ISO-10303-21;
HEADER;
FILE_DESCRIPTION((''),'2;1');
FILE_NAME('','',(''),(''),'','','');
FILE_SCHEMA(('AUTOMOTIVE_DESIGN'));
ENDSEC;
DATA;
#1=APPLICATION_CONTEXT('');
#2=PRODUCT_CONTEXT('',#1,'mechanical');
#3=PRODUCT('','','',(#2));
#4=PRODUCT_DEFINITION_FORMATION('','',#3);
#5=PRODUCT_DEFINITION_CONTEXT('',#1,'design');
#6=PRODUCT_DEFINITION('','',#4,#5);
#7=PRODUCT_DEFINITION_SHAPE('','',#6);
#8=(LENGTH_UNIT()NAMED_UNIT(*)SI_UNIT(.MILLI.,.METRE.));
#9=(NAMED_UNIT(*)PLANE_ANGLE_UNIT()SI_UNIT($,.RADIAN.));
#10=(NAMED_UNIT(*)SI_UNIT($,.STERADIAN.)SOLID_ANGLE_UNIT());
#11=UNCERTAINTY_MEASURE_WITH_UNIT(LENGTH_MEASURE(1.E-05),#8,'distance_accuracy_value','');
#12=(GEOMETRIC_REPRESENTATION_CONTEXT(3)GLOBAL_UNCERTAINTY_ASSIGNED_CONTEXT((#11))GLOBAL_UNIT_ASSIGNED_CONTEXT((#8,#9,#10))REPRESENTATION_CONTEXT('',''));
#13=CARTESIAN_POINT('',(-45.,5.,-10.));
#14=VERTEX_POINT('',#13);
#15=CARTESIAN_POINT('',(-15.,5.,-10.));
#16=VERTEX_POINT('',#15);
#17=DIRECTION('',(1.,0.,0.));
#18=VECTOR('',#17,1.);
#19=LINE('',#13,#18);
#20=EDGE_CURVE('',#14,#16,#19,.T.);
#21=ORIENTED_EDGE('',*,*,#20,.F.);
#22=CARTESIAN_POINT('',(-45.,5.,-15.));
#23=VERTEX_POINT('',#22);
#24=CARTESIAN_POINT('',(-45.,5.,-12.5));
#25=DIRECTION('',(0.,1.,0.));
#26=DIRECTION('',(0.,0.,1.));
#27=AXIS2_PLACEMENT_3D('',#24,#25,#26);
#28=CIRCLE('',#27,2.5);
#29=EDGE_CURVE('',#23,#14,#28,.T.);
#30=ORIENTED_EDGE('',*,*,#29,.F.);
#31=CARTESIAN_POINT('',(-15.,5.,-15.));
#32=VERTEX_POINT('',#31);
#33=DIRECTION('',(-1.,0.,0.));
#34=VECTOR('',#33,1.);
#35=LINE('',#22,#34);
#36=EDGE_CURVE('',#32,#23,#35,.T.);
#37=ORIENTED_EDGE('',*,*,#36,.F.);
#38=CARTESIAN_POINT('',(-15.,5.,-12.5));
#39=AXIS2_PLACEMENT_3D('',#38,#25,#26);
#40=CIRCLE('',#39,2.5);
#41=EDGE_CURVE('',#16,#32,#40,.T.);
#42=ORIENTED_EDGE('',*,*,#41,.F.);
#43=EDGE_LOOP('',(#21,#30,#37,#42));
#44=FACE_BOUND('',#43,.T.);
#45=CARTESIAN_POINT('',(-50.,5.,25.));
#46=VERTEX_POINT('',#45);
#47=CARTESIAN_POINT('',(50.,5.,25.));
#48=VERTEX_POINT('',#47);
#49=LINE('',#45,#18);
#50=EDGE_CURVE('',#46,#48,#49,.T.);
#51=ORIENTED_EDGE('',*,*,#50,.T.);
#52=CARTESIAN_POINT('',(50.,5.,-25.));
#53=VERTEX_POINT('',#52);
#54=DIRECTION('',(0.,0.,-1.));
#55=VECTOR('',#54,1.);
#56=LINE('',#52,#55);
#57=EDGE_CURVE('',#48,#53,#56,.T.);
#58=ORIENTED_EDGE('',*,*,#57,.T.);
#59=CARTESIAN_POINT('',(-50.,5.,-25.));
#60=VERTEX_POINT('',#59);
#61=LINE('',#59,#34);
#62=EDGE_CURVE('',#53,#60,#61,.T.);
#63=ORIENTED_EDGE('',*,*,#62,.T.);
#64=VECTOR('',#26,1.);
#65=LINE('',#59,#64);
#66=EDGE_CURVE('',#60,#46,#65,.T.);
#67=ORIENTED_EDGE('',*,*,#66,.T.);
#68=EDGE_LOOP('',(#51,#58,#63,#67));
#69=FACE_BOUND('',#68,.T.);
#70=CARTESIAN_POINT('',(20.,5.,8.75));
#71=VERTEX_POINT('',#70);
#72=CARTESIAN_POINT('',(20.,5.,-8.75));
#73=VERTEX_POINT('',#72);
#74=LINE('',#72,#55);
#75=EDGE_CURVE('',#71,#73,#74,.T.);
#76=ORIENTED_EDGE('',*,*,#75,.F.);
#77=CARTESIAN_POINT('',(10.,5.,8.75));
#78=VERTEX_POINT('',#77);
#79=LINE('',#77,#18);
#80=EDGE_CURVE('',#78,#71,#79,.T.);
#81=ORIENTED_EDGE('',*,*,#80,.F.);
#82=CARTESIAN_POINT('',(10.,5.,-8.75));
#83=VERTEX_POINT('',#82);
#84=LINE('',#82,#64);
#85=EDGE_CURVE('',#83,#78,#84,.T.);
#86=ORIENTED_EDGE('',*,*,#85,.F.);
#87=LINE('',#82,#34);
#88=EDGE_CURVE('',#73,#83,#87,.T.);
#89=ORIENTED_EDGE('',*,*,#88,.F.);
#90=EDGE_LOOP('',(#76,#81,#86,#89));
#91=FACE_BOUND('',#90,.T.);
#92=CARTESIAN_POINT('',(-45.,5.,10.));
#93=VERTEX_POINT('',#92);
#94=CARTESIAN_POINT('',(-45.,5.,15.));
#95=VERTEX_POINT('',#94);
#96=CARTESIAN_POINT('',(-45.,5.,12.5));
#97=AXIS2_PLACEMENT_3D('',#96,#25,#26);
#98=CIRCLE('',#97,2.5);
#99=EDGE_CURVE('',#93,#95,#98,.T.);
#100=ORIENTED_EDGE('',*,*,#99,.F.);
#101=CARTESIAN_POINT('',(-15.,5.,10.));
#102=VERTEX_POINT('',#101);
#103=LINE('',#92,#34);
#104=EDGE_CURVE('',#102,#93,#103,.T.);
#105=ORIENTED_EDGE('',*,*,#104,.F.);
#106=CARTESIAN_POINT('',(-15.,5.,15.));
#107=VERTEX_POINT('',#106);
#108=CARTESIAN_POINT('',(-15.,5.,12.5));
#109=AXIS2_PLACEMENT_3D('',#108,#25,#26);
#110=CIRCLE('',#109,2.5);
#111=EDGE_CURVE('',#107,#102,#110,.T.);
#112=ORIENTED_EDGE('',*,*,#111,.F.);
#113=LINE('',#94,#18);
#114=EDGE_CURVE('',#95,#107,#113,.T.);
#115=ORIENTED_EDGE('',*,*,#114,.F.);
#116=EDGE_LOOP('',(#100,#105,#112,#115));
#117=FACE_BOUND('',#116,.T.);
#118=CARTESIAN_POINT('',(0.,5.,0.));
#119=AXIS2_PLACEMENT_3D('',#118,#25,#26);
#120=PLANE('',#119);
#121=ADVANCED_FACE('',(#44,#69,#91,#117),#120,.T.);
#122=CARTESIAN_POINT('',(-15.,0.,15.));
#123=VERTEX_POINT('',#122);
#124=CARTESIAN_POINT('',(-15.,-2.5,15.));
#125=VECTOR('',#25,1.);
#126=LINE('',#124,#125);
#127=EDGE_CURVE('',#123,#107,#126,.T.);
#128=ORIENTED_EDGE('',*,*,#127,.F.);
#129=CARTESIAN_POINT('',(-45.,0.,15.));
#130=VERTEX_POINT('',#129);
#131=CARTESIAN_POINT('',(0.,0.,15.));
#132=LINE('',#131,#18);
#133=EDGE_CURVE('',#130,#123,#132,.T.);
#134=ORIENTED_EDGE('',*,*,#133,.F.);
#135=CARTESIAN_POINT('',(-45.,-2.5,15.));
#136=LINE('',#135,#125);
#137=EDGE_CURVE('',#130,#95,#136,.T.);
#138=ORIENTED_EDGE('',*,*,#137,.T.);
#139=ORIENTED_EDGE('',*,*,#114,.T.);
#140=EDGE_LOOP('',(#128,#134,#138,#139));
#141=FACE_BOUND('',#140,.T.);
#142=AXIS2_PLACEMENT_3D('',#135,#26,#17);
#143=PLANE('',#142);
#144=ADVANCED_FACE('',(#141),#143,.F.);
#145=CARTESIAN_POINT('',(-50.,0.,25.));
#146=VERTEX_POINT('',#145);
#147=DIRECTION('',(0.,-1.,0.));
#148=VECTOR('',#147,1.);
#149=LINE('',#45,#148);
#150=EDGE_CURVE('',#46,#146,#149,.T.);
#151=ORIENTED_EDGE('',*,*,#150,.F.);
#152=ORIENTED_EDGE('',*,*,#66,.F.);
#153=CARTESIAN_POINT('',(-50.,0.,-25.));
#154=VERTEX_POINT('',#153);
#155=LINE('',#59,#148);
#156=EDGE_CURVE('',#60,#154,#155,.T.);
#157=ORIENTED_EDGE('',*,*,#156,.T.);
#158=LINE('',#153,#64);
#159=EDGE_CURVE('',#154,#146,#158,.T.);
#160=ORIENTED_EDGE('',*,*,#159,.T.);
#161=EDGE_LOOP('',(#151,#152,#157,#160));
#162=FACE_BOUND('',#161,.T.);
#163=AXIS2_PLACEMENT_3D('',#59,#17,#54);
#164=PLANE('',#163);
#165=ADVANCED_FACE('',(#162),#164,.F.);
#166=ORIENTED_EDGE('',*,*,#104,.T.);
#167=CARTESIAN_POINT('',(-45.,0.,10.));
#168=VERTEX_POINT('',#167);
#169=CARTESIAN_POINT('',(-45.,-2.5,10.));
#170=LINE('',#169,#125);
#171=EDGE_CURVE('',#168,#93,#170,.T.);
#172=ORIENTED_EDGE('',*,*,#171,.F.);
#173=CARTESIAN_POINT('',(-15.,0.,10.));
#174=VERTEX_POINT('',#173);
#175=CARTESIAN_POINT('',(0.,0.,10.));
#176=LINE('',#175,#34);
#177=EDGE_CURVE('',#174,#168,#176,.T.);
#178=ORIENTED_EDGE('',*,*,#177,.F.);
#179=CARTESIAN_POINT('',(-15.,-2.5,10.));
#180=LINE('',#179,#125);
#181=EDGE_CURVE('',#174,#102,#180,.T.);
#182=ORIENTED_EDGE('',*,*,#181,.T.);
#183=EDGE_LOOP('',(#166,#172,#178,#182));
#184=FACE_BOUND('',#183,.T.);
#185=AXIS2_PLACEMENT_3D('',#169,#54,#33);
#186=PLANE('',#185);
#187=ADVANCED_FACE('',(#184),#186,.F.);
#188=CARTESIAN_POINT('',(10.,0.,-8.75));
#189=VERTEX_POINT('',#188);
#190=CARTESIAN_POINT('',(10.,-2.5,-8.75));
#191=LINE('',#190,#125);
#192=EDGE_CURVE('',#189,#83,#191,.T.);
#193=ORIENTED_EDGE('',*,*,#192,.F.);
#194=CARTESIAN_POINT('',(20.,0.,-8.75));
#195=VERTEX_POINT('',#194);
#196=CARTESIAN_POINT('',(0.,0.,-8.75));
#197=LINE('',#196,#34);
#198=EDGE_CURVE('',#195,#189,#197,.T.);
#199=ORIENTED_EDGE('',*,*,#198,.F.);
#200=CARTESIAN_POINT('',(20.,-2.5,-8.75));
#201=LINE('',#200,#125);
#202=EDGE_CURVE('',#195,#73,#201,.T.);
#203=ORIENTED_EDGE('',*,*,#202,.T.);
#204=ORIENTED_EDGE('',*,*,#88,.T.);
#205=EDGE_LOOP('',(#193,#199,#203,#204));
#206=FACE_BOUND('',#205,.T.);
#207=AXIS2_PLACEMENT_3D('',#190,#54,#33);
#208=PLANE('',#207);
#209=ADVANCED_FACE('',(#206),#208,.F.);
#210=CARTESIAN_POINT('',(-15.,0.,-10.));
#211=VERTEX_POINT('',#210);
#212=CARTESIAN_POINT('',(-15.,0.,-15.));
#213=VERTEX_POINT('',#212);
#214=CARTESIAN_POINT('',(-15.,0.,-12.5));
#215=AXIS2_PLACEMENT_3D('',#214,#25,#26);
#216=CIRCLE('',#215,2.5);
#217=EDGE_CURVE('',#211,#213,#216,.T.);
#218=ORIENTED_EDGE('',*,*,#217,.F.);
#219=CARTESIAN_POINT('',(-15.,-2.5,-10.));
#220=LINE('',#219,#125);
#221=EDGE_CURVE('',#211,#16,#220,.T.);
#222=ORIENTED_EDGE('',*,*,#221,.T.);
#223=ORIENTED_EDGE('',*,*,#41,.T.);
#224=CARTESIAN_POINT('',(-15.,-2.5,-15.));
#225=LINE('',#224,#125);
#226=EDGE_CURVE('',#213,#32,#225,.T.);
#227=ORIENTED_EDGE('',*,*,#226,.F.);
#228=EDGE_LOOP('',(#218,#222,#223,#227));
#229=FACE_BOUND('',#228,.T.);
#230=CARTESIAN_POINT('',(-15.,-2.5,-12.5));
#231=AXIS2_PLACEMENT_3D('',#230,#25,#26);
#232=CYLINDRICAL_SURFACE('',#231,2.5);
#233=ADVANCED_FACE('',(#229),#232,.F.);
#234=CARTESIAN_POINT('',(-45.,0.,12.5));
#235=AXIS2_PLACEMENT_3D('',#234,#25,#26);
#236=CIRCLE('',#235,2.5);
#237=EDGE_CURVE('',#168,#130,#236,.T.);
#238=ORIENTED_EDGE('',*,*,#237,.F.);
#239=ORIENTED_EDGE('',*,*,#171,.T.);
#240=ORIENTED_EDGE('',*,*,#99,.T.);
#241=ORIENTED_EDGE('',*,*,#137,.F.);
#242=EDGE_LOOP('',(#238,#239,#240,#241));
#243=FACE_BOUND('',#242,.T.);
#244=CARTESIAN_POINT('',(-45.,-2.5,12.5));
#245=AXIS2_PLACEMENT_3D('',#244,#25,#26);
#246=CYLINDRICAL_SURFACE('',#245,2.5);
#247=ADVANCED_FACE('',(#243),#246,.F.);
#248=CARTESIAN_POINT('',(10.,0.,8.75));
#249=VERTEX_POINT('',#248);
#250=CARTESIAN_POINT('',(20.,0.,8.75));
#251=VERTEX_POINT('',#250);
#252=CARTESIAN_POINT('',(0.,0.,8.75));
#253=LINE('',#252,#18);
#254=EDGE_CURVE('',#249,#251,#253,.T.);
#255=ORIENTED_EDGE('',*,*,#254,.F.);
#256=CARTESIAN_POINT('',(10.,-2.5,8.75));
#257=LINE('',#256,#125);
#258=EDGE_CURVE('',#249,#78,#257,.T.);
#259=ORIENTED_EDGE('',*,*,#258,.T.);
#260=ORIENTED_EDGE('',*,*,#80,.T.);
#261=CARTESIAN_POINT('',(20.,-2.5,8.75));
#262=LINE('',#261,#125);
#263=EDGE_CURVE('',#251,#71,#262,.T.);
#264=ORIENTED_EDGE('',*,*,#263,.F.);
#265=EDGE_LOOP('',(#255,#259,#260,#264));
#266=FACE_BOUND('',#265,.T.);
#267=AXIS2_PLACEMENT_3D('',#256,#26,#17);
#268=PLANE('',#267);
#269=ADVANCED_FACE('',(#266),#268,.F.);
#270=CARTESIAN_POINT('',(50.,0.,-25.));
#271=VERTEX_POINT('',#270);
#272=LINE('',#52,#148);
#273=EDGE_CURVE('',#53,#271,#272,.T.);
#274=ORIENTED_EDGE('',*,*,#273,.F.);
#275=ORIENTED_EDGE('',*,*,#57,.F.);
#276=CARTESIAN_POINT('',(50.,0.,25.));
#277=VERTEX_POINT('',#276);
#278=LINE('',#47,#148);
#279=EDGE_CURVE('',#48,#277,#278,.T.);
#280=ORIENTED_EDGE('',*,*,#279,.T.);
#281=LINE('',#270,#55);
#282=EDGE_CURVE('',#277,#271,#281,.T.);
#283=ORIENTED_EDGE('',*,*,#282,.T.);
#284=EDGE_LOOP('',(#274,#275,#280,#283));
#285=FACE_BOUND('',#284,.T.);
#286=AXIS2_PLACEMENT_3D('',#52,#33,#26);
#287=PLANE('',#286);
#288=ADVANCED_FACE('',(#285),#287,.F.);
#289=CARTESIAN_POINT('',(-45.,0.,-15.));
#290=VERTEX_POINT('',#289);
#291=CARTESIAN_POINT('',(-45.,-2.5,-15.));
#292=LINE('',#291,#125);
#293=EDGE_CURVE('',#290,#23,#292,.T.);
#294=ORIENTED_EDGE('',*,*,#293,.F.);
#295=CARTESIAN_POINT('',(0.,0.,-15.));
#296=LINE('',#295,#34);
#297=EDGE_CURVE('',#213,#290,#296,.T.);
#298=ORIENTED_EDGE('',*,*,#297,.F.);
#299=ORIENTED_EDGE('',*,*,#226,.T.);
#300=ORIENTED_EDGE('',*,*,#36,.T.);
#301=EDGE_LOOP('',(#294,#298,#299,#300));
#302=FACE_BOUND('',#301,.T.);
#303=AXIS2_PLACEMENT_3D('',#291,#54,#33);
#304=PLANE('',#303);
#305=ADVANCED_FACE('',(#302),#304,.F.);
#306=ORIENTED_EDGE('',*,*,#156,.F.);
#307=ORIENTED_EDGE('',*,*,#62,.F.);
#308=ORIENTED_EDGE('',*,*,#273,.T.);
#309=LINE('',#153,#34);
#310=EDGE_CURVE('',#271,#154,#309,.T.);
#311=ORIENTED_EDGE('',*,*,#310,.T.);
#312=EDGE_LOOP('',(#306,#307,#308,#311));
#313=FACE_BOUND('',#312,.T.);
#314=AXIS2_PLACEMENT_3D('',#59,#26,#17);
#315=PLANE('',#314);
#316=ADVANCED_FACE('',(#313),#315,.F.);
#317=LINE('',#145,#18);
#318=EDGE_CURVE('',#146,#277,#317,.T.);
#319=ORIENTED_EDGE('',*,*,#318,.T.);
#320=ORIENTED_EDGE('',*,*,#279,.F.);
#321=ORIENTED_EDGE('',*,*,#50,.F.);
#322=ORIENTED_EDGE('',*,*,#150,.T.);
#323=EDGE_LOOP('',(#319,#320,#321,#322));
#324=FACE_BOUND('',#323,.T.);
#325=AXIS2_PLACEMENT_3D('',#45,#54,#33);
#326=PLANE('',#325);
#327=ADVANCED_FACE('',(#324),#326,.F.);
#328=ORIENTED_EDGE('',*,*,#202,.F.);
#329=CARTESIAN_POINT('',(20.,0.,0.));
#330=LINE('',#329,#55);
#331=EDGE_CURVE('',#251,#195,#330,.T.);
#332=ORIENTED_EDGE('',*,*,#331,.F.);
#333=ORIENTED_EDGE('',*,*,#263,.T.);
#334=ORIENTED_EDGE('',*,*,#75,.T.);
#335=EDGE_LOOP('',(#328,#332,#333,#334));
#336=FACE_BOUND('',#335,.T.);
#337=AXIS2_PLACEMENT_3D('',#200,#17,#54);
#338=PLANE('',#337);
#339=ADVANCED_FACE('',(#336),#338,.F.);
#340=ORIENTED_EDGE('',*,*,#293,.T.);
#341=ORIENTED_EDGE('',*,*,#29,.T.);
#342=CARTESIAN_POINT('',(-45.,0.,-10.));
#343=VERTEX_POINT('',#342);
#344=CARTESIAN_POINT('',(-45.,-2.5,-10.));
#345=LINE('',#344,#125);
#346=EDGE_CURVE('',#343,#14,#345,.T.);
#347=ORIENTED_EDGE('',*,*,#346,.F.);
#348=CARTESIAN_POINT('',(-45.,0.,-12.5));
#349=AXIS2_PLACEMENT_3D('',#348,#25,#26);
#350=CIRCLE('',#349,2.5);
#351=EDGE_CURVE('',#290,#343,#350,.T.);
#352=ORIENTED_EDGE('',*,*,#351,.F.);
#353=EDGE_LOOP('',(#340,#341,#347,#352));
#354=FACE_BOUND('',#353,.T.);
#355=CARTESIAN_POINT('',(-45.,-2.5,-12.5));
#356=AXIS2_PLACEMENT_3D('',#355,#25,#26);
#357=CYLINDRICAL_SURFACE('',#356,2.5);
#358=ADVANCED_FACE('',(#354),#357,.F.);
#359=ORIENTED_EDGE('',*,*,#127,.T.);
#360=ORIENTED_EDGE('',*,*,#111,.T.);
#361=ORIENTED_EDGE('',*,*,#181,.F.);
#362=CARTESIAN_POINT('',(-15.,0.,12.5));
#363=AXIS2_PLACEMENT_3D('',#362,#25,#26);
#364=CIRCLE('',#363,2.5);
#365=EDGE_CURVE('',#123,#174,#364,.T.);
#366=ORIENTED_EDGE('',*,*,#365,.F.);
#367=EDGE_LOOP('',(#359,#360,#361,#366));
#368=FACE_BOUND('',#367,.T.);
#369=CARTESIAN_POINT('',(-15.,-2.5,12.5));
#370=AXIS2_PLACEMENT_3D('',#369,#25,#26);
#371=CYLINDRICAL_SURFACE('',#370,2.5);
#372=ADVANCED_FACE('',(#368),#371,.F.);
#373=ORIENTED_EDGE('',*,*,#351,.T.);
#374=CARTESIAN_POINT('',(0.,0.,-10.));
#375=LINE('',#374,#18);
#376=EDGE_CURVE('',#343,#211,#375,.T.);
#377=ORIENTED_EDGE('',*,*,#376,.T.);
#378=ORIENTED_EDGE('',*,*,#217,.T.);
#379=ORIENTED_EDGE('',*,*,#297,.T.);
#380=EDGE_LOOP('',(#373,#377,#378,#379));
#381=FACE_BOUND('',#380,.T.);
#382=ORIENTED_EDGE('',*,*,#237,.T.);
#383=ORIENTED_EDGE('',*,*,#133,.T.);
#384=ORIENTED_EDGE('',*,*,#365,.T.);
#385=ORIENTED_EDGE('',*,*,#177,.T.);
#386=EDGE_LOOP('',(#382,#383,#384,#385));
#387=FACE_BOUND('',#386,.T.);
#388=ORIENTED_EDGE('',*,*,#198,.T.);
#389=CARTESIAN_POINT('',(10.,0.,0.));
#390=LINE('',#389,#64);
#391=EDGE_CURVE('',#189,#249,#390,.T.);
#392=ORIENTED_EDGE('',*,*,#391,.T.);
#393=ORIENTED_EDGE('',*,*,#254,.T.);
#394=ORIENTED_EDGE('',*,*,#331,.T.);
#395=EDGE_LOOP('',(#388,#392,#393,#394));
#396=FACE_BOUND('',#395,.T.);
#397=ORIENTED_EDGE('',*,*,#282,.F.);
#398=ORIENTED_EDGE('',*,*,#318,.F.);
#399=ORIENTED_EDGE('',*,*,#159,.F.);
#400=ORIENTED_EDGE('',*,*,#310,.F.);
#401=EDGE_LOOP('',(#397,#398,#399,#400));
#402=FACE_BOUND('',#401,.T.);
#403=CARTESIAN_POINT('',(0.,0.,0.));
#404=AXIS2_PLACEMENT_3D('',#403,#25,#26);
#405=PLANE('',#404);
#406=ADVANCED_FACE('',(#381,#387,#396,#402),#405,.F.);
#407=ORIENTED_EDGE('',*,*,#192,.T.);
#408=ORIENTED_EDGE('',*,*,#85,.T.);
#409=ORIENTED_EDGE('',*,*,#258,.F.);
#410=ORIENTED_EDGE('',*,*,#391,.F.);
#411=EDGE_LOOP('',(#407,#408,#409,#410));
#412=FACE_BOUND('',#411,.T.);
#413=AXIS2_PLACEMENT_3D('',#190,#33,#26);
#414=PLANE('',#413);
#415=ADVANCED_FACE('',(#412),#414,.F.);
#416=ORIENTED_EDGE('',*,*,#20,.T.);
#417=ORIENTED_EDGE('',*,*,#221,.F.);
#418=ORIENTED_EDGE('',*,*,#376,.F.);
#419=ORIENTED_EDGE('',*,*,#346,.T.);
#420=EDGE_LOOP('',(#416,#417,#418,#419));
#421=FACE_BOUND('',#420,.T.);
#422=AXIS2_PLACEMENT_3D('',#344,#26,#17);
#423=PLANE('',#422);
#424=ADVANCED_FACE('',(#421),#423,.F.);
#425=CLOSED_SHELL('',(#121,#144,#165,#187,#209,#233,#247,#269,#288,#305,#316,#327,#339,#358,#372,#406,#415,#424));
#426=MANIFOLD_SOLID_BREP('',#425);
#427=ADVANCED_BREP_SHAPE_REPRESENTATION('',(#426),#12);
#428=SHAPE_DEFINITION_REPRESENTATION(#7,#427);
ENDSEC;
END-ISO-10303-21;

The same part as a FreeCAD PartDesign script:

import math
import FreeCAD as App
import Part
import Sketcher

V = App.Vector
Q = App.Units.Quantity

doc = App.newDocument("Part")
body = doc.addObject("PartDesign::Body", "Body")

sketch1 = body.newObject("Sketcher::SketchObject", "Sketch")
sketch1.AttachmentSupport = (doc.getObject("XZ_Plane"), [""])
sketch1.MapMode = "FlatFace"
sketch1.addGeometry(Part.LineSegment(V(-50, -25, 0), V(-50, 25, 0)), False)
sketch1.addGeometry(Part.LineSegment(V(-50, 25, 0), V(50, 25, 0)), False)
sketch1.addGeometry(Part.LineSegment(V(50, 25, 0), V(50, -25, 0)), False)
sketch1.addGeometry(Part.LineSegment(V(50, -25, 0), V(-50, -25, 0)), False)
sketch1.addConstraint(Sketcher.Constraint("Coincident", 0, 2, 1, 1))
sketch1.addConstraint(Sketcher.Constraint("Coincident", 1, 2, 2, 1))
sketch1.addConstraint(Sketcher.Constraint("Coincident", 2, 2, 3, 1))
sketch1.addConstraint(Sketcher.Constraint("Coincident", 3, 2, 0, 1))
sketch1.addConstraint(Sketcher.Constraint("Vertical", 0))
sketch1.addConstraint(Sketcher.Constraint("Horizontal", 1))
sketch1.addConstraint(Sketcher.Constraint("Vertical", 2))
sketch1.addConstraint(Sketcher.Constraint("Horizontal", 3))
sketch1.addConstraint(Sketcher.Constraint("Symmetric", 0, 2, 2, 2, -1, 1))
sketch1.addConstraint(Sketcher.Constraint("DistanceX", 1, 1, 1, 2, Q("100 mm")))
sketch1.addConstraint(Sketcher.Constraint("DistanceY", 0, 1, 0, 2, Q("50 mm")))
pad1 = body.newObject("PartDesign::Pad", "Pad")
pad1.Profile = sketch1
pad1.Length = 5
pad1.Reversed = True

sketch2 = body.newObject("Sketcher::SketchObject", "Sketch001")
sketch2.AttachmentSupport = (doc.getObject("XZ_Plane"), [""])
sketch2.MapMode = "FlatFace"
sketch2.AttachmentOffset = App.Placement(V(0, 0, -5), App.Rotation())
sketch2.addGeometry(Part.LineSegment(V(10, -9, 0), V(10, 9, 0)), False)
sketch2.addGeometry(Part.LineSegment(V(10, 9, 0), V(20, 9, 0)), False)
sketch2.addGeometry(Part.LineSegment(V(20, 9, 0), V(20, -9, 0)), False)
sketch2.addGeometry(Part.LineSegment(V(20, -9, 0), V(10, -9, 0)), False)
sketch2.addConstraint(Sketcher.Constraint("Coincident", 0, 2, 1, 1))
sketch2.addConstraint(Sketcher.Constraint("Coincident", 1, 2, 2, 1))
sketch2.addConstraint(Sketcher.Constraint("Coincident", 2, 2, 3, 1))
sketch2.addConstraint(Sketcher.Constraint("Coincident", 3, 2, 0, 1))
sketch2.addConstraint(Sketcher.Constraint("Vertical", 0))
sketch2.addConstraint(Sketcher.Constraint("Horizontal", 1))
sketch2.addConstraint(Sketcher.Constraint("Vertical", 2))
sketch2.addConstraint(Sketcher.Constraint("Horizontal", 3))
sketch2.addConstraint(Sketcher.Constraint("DistanceX", 1, 1, 1, 2, Q("10 mm")))
sketch2.addConstraint(Sketcher.Constraint("DistanceY", 0, 1, 0, 2, Q("17.5 mm")))
sketch2.addConstraint(Sketcher.Constraint("DistanceX", -1, 1, 0, 2, Q("10 mm")))
sketch2.addConstraint(Sketcher.Constraint("DistanceY", -1, 1, 0, 2, Q("8.75 mm")))
pocket1 = body.newObject("PartDesign::Pocket", "Pocket")
pocket1.Profile = sketch2
pocket1.Length = 7.5
pocket1.Reversed = True

sketch3 = body.newObject("Sketcher::SketchObject", "Sketch002")
sketch3.AttachmentSupport = (doc.getObject("XZ_Plane"), [""])
sketch3.MapMode = "FlatFace"
sketch3.AttachmentOffset = App.Placement(V(0, 0, -5), App.Rotation())
sketch3.addGeometry(Part.LineSegment(V(-15, -15, 0), V(-45, -15, 0)), False)
sketch3.addGeometry(Part.ArcOfCircle(Part.Circle(V(-45, -12.5, 0), V(0, 0, 1), 2.5), math.radians(90), math.radians(270)), False)
sketch3.addGeometry(Part.LineSegment(V(-45, -10, 0), V(-15, -10, 0)), False)
sketch3.addGeometry(Part.ArcOfCircle(Part.Circle(V(-15, -12.5, 0), V(0, 0, 1), 2.5), math.radians(-90), math.radians(90)), False)
sketch3.addGeometry(Part.LineSegment(V(-45, 15, 0), V(-15, 15, 0)), False)
sketch3.addGeometry(Part.ArcOfCircle(Part.Circle(V(-15, 12.5, 0), V(0, 0, 1), 2.5), math.radians(-90), math.radians(90)), False)
sketch3.addGeometry(Part.LineSegment(V(-15, 10, 0), V(-45, 10, 0)), False)
sketch3.addGeometry(Part.ArcOfCircle(Part.Circle(V(-45, 12.5, 0), V(0, 0, 1), 2.5), math.radians(90), math.radians(270)), False)
sketch3.addConstraint(Sketcher.Constraint("Tangent", 0, 2, 1, 2))
sketch3.addConstraint(Sketcher.Constraint("Tangent", 1, 1, 2, 1))
sketch3.addConstraint(Sketcher.Constraint("Tangent", 2, 2, 3, 2))
sketch3.addConstraint(Sketcher.Constraint("Tangent", 3, 1, 0, 1))
sketch3.addConstraint(Sketcher.Constraint("Tangent", 4, 2, 5, 2))
sketch3.addConstraint(Sketcher.Constraint("Tangent", 5, 1, 6, 1))
sketch3.addConstraint(Sketcher.Constraint("Tangent", 6, 2, 7, 2))
sketch3.addConstraint(Sketcher.Constraint("Tangent", 7, 1, 4, 1))
sketch3.addConstraint(Sketcher.Constraint("Horizontal", 0))
sketch3.addConstraint(Sketcher.Constraint("Horizontal", 2))
sketch3.addConstraint(Sketcher.Constraint("Horizontal", 4))
sketch3.addConstraint(Sketcher.Constraint("Horizontal", 6))
sketch3.addConstraint(Sketcher.Constraint("Equal", 3, 5))
sketch3.addConstraint(Sketcher.Constraint("Symmetric", 3, 3, 5, 3, -1))
sketch3.addConstraint(Sketcher.Constraint("Vertical", 1, 3, 7, 3))
sketch3.addConstraint(Sketcher.Constraint("Radius", 1, Q("2.5 mm")))
sketch3.addConstraint(Sketcher.Constraint("DistanceX", 0, 2, 0, 1, Q("30 mm")))
sketch3.addConstraint(Sketcher.Constraint("DistanceX", 1, 3, -1, 1, Q("45 mm")))
sketch3.addConstraint(Sketcher.Constraint("DistanceY", 0, 2, -1, 1, Q("15 mm")))
pocket2 = body.newObject("PartDesign::Pocket", "Pocket001")
pocket2.Profile = sketch3
pocket2.Length = 7.5
pocket2.Reversed = True

doc.recompute()
